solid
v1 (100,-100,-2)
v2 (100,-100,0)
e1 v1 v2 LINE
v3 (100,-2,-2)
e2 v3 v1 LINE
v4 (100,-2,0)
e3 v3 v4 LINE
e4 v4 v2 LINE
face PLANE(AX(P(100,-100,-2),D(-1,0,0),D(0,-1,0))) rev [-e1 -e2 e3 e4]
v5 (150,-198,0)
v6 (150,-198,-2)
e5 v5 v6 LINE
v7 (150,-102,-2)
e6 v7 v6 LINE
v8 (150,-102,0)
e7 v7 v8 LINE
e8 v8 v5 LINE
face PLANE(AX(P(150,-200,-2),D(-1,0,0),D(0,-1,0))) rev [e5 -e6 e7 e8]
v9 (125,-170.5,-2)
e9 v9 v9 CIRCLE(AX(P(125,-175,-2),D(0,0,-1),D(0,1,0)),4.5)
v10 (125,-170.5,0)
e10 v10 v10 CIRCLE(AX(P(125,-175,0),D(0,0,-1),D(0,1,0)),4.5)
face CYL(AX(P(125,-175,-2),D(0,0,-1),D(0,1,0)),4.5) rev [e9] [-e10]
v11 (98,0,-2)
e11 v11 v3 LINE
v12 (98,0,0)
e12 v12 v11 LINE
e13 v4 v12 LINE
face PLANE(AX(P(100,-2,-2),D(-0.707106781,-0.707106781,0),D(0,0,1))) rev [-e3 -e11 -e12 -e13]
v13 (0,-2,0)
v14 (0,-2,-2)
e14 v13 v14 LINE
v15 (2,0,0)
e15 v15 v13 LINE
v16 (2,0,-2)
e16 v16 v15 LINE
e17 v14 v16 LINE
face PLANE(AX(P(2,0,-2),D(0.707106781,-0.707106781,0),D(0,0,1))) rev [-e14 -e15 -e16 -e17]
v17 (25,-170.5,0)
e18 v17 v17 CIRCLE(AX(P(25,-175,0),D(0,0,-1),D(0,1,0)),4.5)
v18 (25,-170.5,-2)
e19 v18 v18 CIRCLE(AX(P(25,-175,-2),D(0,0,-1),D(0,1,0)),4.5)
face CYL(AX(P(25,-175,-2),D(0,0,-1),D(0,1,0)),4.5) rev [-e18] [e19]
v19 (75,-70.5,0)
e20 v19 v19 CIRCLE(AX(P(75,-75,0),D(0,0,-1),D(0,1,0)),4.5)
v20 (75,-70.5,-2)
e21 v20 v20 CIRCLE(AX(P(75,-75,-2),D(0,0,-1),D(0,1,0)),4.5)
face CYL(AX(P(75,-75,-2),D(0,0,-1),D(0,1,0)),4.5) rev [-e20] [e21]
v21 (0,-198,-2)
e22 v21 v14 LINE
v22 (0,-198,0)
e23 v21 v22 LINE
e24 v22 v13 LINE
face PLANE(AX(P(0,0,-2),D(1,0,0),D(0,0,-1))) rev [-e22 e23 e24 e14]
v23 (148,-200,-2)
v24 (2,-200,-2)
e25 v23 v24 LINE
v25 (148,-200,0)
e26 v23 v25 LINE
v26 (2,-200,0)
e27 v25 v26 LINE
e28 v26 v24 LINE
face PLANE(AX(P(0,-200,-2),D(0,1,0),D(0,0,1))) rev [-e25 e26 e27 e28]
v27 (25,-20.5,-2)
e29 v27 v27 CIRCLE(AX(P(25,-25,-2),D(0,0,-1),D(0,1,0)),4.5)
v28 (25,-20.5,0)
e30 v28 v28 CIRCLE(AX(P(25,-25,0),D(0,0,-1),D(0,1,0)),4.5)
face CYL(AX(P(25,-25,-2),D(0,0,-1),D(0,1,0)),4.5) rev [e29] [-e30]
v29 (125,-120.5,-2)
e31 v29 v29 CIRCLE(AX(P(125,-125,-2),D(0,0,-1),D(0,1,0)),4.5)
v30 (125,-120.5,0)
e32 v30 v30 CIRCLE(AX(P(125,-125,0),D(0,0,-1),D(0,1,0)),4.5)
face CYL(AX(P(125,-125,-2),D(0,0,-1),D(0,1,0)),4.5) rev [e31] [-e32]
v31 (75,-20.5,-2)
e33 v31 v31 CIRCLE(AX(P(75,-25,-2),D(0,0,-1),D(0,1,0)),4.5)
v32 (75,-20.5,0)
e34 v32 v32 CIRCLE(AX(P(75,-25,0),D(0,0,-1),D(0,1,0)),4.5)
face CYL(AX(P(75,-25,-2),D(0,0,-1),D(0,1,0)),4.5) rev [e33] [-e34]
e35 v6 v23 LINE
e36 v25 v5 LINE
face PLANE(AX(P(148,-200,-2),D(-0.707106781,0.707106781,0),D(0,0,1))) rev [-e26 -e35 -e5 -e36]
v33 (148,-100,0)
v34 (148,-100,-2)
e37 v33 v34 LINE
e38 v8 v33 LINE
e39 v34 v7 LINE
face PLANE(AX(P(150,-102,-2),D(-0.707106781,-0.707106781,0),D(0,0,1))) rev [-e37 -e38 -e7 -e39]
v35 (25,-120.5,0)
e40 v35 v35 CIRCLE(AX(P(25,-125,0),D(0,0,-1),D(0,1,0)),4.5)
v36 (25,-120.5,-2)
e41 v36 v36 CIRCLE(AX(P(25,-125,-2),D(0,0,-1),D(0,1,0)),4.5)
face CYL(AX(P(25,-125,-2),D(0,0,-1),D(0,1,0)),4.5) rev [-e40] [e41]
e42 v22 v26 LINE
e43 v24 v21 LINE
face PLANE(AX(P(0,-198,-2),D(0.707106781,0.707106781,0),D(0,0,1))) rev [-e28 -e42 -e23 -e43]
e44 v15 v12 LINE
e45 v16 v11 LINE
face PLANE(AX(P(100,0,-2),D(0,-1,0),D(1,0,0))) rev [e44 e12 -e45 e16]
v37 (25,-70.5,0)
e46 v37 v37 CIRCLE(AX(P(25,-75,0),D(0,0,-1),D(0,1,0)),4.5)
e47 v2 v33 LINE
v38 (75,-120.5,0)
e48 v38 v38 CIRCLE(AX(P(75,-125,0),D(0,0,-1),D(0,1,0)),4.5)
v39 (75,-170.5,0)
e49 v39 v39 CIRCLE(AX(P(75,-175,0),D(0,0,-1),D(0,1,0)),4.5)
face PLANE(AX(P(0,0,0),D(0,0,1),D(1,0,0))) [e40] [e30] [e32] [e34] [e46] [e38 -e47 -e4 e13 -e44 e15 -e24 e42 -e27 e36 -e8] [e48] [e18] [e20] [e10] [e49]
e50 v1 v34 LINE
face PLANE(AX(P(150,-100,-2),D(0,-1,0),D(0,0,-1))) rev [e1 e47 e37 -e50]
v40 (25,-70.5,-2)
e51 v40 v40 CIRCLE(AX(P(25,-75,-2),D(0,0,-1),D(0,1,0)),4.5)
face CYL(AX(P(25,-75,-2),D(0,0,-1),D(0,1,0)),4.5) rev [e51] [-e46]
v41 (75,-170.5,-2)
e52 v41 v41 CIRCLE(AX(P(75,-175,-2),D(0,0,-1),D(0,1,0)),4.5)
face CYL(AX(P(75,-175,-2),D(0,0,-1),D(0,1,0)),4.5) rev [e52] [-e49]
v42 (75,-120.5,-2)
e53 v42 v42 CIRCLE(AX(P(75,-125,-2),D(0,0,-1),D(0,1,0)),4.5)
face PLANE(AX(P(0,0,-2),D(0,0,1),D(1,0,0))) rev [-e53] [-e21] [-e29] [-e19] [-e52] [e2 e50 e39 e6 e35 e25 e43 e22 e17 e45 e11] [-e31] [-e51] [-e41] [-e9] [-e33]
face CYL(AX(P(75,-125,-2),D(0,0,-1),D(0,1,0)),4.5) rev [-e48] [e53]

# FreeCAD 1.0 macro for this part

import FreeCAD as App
import Part
import Sketcher
from FreeCAD import Vector


def edges_at(feature, points):
    """Names of the edges that pass closest to the given points."""
    edges = feature.Shape.Edges
    near = lambda p: min(range(len(edges)), key=lambda i: edges[i].distToShape(Part.Vertex(*p))[0])
    return sorted({f"Edge{near(p) + 1}" for p in points})


def add_polygon(sketch, points):
    """Adds a closed chain of lines whose ends are joined by coincident constraints."""
    first, n = sketch.GeometryCount, len(points)
    for a, b in zip(points, points[1:] + points[:1]):
        sketch.addGeometry(Part.LineSegment(App.Vector(*a, 0), App.Vector(*b, 0)), False)
    for i in range(n):
        sketch.addConstraint(Sketcher.Constraint("Coincident", first + i, 2, first + (i + 1) % n, 1))

doc = App.newDocument("Part")
body = doc.addObject("PartDesign::Body", "Body")

sketch1 = body.newObject("Sketcher::SketchObject", "Sketch")
sketch1.AttachmentSupport = (doc.getObject("XY_Plane"), [""])
sketch1.MapMode = "FlatFace"
add_polygon(sketch1, [(0, -200), (0, 0), (100, 0), (100, -100), (150, -100), (150, -200)])
sketch1.addConstraint([
    Sketcher.Constraint("Vertical", 0),
    Sketcher.Constraint("Horizontal", 1),
    Sketcher.Constraint("Vertical", 2),
    Sketcher.Constraint("Horizontal", 3),
    Sketcher.Constraint("Vertical", 4),
    Sketcher.Constraint("Horizontal", 5),
    Sketcher.Constraint("Coincident", 0, 2, -1, 1),
    Sketcher.Constraint("Equal", 1, 2),
    Sketcher.Constraint("Equal", 2, 4),
    Sketcher.Constraint("DistanceX", 1, 1, 1, 2, 100.0),
    Sketcher.Constraint("DistanceX", 3, 1, 3, 2, 50.0),
])
pad1 = body.newObject("PartDesign::Pad", "Pad")
pad1.Profile = sketch1
pad1.Length = 2
pad1.Reversed = True

sketch2 = body.newObject("Sketcher::SketchObject", "Sketch001")
sketch2.AttachmentSupport = (doc.getObject("XY_Plane"), [""])
sketch2.MapMode = "FlatFace"
sketch2.AttachmentOffset = App.Placement(Vector(0, 0, -2), App.Rotation())
sketch2.addGeometry([
    Part.Circle(Vector(25, -175, 0), Vector(0, 0, 1), 4.5),
    Part.Circle(Vector(25, -125, 0), Vector(0, 0, 1), 4.5),
    Part.Circle(Vector(25, -75, 0), Vector(0, 0, 1), 4.5),
    Part.Circle(Vector(25, -25, 0), Vector(0, 0, 1), 4.5),
    Part.Circle(Vector(75, -175, 0), Vector(0, 0, 1), 4.5),
    Part.Circle(Vector(75, -125, 0), Vector(0, 0, 1), 4.5),
    Part.Circle(Vector(75, -75, 0), Vector(0, 0, 1), 4.5),
    Part.Circle(Vector(75, -25, 0), Vector(0, 0, 1), 4.5),
    Part.Circle(Vector(125, -175, 0), Vector(0, 0, 1), 4.5),
    Part.Circle(Vector(125, -125, 0), Vector(0, 0, 1), 4.5),
], False)
sketch2.addConstraint([
    Sketcher.Constraint("Equal", 0, 1),
    Sketcher.Constraint("Equal", 1, 2),
    Sketcher.Constraint("Equal", 2, 3),
    Sketcher.Constraint("Equal", 3, 4),
    Sketcher.Constraint("Equal", 4, 5),
    Sketcher.Constraint("Equal", 5, 6),
    Sketcher.Constraint("Equal", 6, 7),
    Sketcher.Constraint("Equal", 7, 8),
    Sketcher.Constraint("Equal", 8, 9),
    Sketcher.Constraint("Horizontal", 0, 3, 4, 3),
    Sketcher.Constraint("Horizontal", 1, 3, 5, 3),
    Sketcher.Constraint("Horizontal", 2, 3, 6, 3),
    Sketcher.Constraint("Horizontal", 3, 3, 7, 3),
    Sketcher.Constraint("Horizontal", 4, 3, 8, 3),
    Sketcher.Constraint("Horizontal", 5, 3, 9, 3),
    Sketcher.Constraint("Vertical", 0, 3, 1, 3),
    Sketcher.Constraint("Vertical", 1, 3, 2, 3),
    Sketcher.Constraint("Vertical", 2, 3, 3, 3),
    Sketcher.Constraint("Vertical", 4, 3, 5, 3),
    Sketcher.Constraint("Vertical", 5, 3, 6, 3),
    Sketcher.Constraint("Vertical", 6, 3, 7, 3),
    Sketcher.Constraint("Vertical", 8, 3, 9, 3),
    Sketcher.Constraint("Diameter", 0, 9.0),
    Sketcher.Constraint("DistanceX", -1, 1, 0, 3, 25.0),
    Sketcher.Constraint("DistanceY", 0, 3, -1, 1, 175.0),
    Sketcher.Constraint("DistanceY", 1, 3, -1, 1, 125.0),
    Sketcher.Constraint("DistanceY", 2, 3, -1, 1, 75.0),
    Sketcher.Constraint("DistanceY", 3, 3, -1, 1, 25.0),
    Sketcher.Constraint("DistanceX", -1, 1, 4, 3, 75.0),
    Sketcher.Constraint("DistanceX", -1, 1, 8, 3, 125.0),
])
doc.recompute()
hole = body.newObject("PartDesign::Hole", "Hole")
hole.Profile = sketch2
hole.ThreadType = "None"
hole.Diameter = 9
hole.DepthType = "ThroughAll"
hole.Reversed = True
doc.recompute()

chamfer = body.newObject("PartDesign::Chamfer", "Chamfer")
chamfer.Base = (hole, edges_at(hole, [
    (0, 0, -1),
    (0, -200, -1),
    (150, -200, -1),
    (150, -100, -1),
    (100, 0, -1),
]))
chamfer.Size = 2

doc.recompute()
